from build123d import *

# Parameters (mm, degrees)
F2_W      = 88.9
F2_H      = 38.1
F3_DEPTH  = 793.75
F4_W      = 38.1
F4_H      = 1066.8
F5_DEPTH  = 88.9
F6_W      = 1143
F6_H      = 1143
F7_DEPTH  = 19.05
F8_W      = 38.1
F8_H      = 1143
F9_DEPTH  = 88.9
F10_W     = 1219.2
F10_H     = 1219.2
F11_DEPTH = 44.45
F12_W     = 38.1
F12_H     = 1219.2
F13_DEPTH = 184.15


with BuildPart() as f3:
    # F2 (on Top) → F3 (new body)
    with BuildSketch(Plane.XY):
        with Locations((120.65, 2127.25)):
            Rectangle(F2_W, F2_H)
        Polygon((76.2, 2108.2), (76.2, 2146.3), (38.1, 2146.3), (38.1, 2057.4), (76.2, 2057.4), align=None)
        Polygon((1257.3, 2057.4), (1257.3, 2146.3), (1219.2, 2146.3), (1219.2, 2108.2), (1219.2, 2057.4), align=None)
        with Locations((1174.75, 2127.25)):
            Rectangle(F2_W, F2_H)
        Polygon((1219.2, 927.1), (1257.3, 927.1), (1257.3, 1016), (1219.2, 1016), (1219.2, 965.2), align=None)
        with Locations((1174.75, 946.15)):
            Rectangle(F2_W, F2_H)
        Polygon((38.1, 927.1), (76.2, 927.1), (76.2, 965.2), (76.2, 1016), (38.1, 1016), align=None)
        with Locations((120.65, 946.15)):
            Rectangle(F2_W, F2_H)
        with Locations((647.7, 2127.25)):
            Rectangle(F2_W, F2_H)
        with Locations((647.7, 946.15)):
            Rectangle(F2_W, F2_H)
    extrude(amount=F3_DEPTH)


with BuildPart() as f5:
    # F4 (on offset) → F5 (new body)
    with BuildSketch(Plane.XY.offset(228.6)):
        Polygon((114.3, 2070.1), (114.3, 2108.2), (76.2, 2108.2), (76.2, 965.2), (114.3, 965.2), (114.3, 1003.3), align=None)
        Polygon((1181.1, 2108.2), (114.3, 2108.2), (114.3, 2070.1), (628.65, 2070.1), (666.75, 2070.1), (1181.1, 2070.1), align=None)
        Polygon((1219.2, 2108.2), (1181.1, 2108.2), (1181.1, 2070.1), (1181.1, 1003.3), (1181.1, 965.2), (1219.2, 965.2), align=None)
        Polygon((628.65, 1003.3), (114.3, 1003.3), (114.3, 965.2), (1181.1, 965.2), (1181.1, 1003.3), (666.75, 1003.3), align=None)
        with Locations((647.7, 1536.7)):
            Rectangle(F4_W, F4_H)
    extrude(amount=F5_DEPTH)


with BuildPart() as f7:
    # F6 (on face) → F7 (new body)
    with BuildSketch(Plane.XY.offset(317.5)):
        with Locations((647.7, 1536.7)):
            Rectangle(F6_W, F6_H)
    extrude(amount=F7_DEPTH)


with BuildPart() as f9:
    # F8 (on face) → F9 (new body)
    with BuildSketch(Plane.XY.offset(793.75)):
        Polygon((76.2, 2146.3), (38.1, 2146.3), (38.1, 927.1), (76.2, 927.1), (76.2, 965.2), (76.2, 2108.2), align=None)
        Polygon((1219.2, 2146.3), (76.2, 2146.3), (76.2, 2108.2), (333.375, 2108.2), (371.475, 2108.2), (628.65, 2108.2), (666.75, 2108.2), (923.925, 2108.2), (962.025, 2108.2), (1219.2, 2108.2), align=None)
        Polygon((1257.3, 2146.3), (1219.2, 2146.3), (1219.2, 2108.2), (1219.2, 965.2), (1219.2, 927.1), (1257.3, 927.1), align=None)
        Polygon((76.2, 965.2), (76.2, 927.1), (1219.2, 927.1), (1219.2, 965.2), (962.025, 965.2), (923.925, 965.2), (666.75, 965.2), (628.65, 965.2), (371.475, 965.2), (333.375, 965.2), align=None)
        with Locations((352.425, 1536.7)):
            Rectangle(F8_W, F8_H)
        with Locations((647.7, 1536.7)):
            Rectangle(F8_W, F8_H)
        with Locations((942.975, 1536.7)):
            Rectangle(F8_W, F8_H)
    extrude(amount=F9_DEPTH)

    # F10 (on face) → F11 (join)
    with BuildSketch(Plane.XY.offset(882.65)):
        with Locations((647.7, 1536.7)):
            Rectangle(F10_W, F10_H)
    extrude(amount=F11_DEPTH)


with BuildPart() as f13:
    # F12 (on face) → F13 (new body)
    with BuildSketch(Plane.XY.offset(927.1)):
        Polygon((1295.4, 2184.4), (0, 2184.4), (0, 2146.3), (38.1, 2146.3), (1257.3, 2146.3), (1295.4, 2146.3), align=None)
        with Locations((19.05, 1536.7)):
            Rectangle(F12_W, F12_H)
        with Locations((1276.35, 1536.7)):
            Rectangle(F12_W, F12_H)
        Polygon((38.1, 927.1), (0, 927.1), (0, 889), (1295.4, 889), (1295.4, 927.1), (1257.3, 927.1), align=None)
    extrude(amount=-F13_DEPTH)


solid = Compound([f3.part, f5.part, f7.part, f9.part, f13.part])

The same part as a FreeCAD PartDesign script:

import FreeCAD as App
import Part
import Sketcher
Q = App.Units.Quantity


def add_polygon(sketch, points):
    """Adds a closed chain of lines whose ends are joined by coincident constraints."""
    first, n = sketch.GeometryCount, len(points)
    for a, b in zip(points, points[1:] + points[:1]):
        sketch.addGeometry(Part.LineSegment(App.Vector(*a, 0), App.Vector(*b, 0)), False)
    for i in range(n):
        sketch.addConstraint(Sketcher.Constraint("Coincident", first + i, 2, first + (i + 1) % n, 1))

doc = App.newDocument("Part")
body = doc.addObject("PartDesign::Body", "Body")
body.AllowCompound = True

# Sketch on XY plane
sketch1 = body.newObject("Sketcher::SketchObject", "Sketch")
sketch1.AttachmentSupport = (doc.getObject("XY_Plane"), [""])
sketch1.MapMode = "FlatFace"
add_polygon(sketch1, [(76, 2108), (165, 2108), (165, 2146), (38, 2146), (38, 2057), (76, 2057)])  # lines 0-5
add_polygon(sketch1, [(1257, 2057), (1257, 2146), (1130, 2146), (1130, 2108), (1219, 2108), (1219, 2057)])  # lines 6-11
add_polygon(sketch1, [(1257, 927), (1257, 1016), (1219, 1016), (1219, 965), (1130, 965), (1130, 927)])  # lines 12-17
add_polygon(sketch1, [(38, 927), (165, 927), (165, 965), (76, 965), (76, 1016), (38, 1016)])  # lines 18-23
add_polygon(sketch1, [(603, 2146), (603, 2108), (692, 2108), (692, 2146)])  # lines 24-27
add_polygon(sketch1, [(603, 965), (603, 927), (692, 927), (692, 965)])  # lines 28-31
sketch1.addConstraint(Sketcher.Constraint("Horizontal", 0))
sketch1.addConstraint(Sketcher.Constraint("Vertical", 1))
sketch1.addConstraint(Sketcher.Constraint("Horizontal", 2))
sketch1.addConstraint(Sketcher.Constraint("Vertical", 3))
sketch1.addConstraint(Sketcher.Constraint("Horizontal", 4))
sketch1.addConstraint(Sketcher.Constraint("Vertical", 5))
sketch1.addConstraint(Sketcher.Constraint("Vertical", 6))
sketch1.addConstraint(Sketcher.Constraint("Horizontal", 7))
sketch1.addConstraint(Sketcher.Constraint("Vertical", 8))
sketch1.addConstraint(Sketcher.Constraint("Horizontal", 9))
sketch1.addConstraint(Sketcher.Constraint("Vertical", 10))
sketch1.addConstraint(Sketcher.Constraint("Horizontal", 11))
sketch1.addConstraint(Sketcher.Constraint("Vertical", 12))
sketch1.addConstraint(Sketcher.Constraint("Horizontal", 13))
sketch1.addConstraint(Sketcher.Constraint("Vertical", 14))
sketch1.addConstraint(Sketcher.Constraint("Horizontal", 15))
sketch1.addConstraint(Sketcher.Constraint("Vertical", 16))
sketch1.addConstraint(Sketcher.Constraint("Horizontal", 17))
sketch1.addConstraint(Sketcher.Constraint("Horizontal", 18))
sketch1.addConstraint(Sketcher.Constraint("Vertical", 19))
sketch1.addConstraint(Sketcher.Constraint("Horizontal", 20))
sketch1.addConstraint(Sketcher.Constraint("Vertical", 21))
sketch1.addConstraint(Sketcher.Constraint("Horizontal", 22))
sketch1.addConstraint(Sketcher.Constraint("Vertical", 23))
sketch1.addConstraint(Sketcher.Constraint("Vertical", 24))
sketch1.addConstraint(Sketcher.Constraint("Horizontal", 25))
sketch1.addConstraint(Sketcher.Constraint("Vertical", 26))
sketch1.addConstraint(Sketcher.Constraint("Horizontal", 27))
sketch1.addConstraint(Sketcher.Constraint("Vertical", 28))
sketch1.addConstraint(Sketcher.Constraint("Horizontal", 29))
sketch1.addConstraint(Sketcher.Constraint("Vertical", 30))
sketch1.addConstraint(Sketcher.Constraint("Horizontal", 31))
sketch1.addConstraint(Sketcher.Constraint("Horizontal", 2, 2, 6, 2))
sketch1.addConstraint(Sketcher.Constraint("Horizontal", 5, 2, 8, 2))
sketch1.addConstraint(Sketcher.Constraint("Horizontal", 4, 2, 10, 2))
sketch1.addConstraint(Sketcher.Constraint("Horizontal", 17, 2, 18, 2))
sketch1.addConstraint(Sketcher.Constraint("Horizontal", 15, 2, 19, 2))
sketch1.addConstraint(Sketcher.Constraint("Horizontal", 13, 2, 21, 2))
sketch1.addConstraint(Sketcher.Constraint("Horizontal", 9, 2, 24, 2))
sketch1.addConstraint(Sketcher.Constraint("Horizontal", 7, 2, 26, 2))
sketch1.addConstraint(Sketcher.Constraint("Horizontal", 23, 2, 28, 2))
sketch1.addConstraint(Sketcher.Constraint("Horizontal", 20, 2, 30, 2))
sketch1.addConstraint(Sketcher.Constraint("Vertical", 11, 2, 12, 2))
sketch1.addConstraint(Sketcher.Constraint("Vertical", 10, 2, 13, 2))
sketch1.addConstraint(Sketcher.Constraint("Vertical", 8, 2, 15, 2))
sketch1.addConstraint(Sketcher.Constraint("Vertical", 1, 2, 18, 2))
sketch1.addConstraint(Sketcher.Constraint("Vertical", 5, 2, 20, 2))
sketch1.addConstraint(Sketcher.Constraint("Vertical", 3, 2, 22, 2))
sketch1.addConstraint(Sketcher.Constraint("Vertical", 27, 2, 28, 2))
sketch1.addConstraint(Sketcher.Constraint("Vertical", 26, 2, 29, 2))
sketch1.addConstraint(Sketcher.Constraint("Equal", 2, 7))
sketch1.addConstraint(Sketcher.Constraint("Equal", 0, 9))
sketch1.addConstraint(Sketcher.Constraint("Equal", 20, 25))
sketch1.addConstraint(Sketcher.Constraint("Equal", 22, 1))
sketch1.addConstraint(Sketcher.Constraint("Equal", 31, 3))
sketch1.addConstraint(Sketcher.Constraint("Equal", 6, 12))
sketch1.addConstraint(Sketcher.Constraint("Equal", 10, 14))
sketch1.addConstraint(Sketcher.Constraint("DistanceX", 2, 2, 2, 1, Q("5 in")))
sketch1.addConstraint(Sketcher.Constraint("DistanceY", 5, 1, 5, 2, Q("2 in")))
sketch1.addConstraint(Sketcher.Constraint("DistanceY", -1, 1, 0, 2, Q("83 in")))
sketch1.addConstraint(Sketcher.Constraint("DistanceX", -1, 1, 4, 2, Q("3 in")))
sketch1.addConstraint(Sketcher.Constraint("DistanceX", -1, 1, 9, 2, Q("48 in")))
sketch1.addConstraint(Sketcher.Constraint("DistanceY", -1, 1, 12, 2, Q("40 in")))
sketch1.addConstraint(Sketcher.Constraint("DistanceX", -1, 1, 24, 2, Q("23.75 in")))
pad1 = body.newObject("PartDesign::Pad", "Pad")
pad1.Profile = sketch1
pad1.Length = Q("31.25 in")
body2 = doc.addObject("PartDesign::Body", "Body001")

# Sketch on XY plane
sketch2 = body2.newObject("Sketcher::SketchObject", "Sketch001")
sketch2.AttachmentSupport = (doc.getObject("XY_Plane001"), [""])
sketch2.MapMode = "FlatFace"
sketch2.AttachmentOffset = App.Placement(App.Vector(0, 0, 9 * 25.4), App.Rotation())
add_polygon(sketch2, [(76, 2108), (76, 965), (1219, 965), (1219, 2108)])  # lines 0-3
add_polygon(sketch2, [(114, 1003), (114, 2070), (629, 2070), (629, 1003)])  # lines 4-7
add_polygon(sketch2, [(667, 2070), (1181, 2070), (1181, 1003), (667, 1003)])  # lines 8-11
sketch2.addConstraint(Sketcher.Constraint("Vertical", 0))
sketch2.addConstraint(Sketcher.Constraint("Horizontal", 1))
sketch2.addConstraint(Sketcher.Constraint("Vertical", 2))
sketch2.addConstraint(Sketcher.Constraint("Horizontal", 3))
sketch2.addConstraint(Sketcher.Constraint("Vertical", 4))
sketch2.addConstraint(Sketcher.Constraint("Horizontal", 5))
sketch2.addConstraint(Sketcher.Constraint("Vertical", 6))
sketch2.addConstraint(Sketcher.Constraint("Horizontal", 7))
sketch2.addConstraint(Sketcher.Constraint("Horizontal", 8))
sketch2.addConstraint(Sketcher.Constraint("Vertical", 9))
sketch2.addConstraint(Sketcher.Constraint("Horizontal", 10))
sketch2.addConstraint(Sketcher.Constraint("Vertical", 11))
sketch2.addConstraint(Sketcher.Constraint("Horizontal", 5, 2, 8, 2))
sketch2.addConstraint(Sketcher.Constraint("Horizontal", 7, 2, 9, 2))
sketch2.addConstraint(Sketcher.Constraint("Equal", 7, 8))
sketch2.addConstraint(Sketcher.Constraint("Equal", 3, 0))
sketch2.addConstraint(Sketcher.Constraint("DistanceX", 1, 1, 1, 2, Q("45 in")))
sketch2.addConstraint(Sketcher.Constraint("DistanceY", 4, 1, 4, 2, Q("42 in")))
sketch2.addConstraint(Sketcher.Constraint("DistanceX", -1, 1, 0, 2, Q("3 in")))
sketch2.addConstraint(Sketcher.Constraint("DistanceY", -1, 1, 0, 2, Q("38 in")))
sketch2.addConstraint(Sketcher.Constraint("DistanceX", 4, 2, 8, 2, Q("42 in")))
sketch2.addConstraint(Sketcher.Constraint("DistanceX", 5, 1, 5, 2, Q("20.25 in")))
sketch2.addConstraint(Sketcher.Constraint("DistanceX", -1, 1, 4, 2, Q("4.5 in")))
sketch2.addConstraint(Sketcher.Constraint("DistanceY", -1, 1, 4, 2, Q("81.5 in")))
pad2 = body2.newObject("PartDesign::Pad", "Pad001")
pad2.Profile = sketch2
pad2.Length = Q("3.5 in")
body3 = doc.addObject("PartDesign::Body", "Body002")

# Sketch on XY plane
sketch3 = body3.newObject("Sketcher::SketchObject", "Sketch002")
sketch3.AttachmentSupport = (doc.getObject("XY_Plane002"), [""])
sketch3.MapMode = "FlatFace"
sketch3.AttachmentOffset = App.Placement(App.Vector(0, 0, 12.5 * 25.4), App.Rotation())
add_polygon(sketch3, [(76, 2108), (76, 965), (1219, 965), (1219, 2108)])  # lines 0-3
sketch3.addConstraint(Sketcher.Constraint("Vertical", 0))
sketch3.addConstraint(Sketcher.Constraint("Horizontal", 1))
sketch3.addConstraint(Sketcher.Constraint("Vertical", 2))
sketch3.addConstraint(Sketcher.Constraint("Horizontal", 3))
sketch3.addConstraint(Sketcher.Constraint("Equal", 3, 0))
sketch3.addConstraint(Sketcher.Constraint("DistanceX", 1, 1, 1, 2, Q("45 in")))
sketch3.addConstraint(Sketcher.Constraint("DistanceX", -1, 1, 0, 2, Q("3 in")))
sketch3.addConstraint(Sketcher.Constraint("DistanceY", -1, 1, 0, 2, Q("38 in")))
pad3 = body3.newObject("PartDesign::Pad", "Pad002")
pad3.Profile = sketch3
pad3.Length = Q("0.75 in")
body4 = doc.addObject("PartDesign::Body", "Body003")

# Sketch on XY plane
sketch4 = body4.newObject("Sketcher::SketchObject", "Sketch003")
sketch4.AttachmentSupport = (doc.getObject("XY_Plane003"), [""])
sketch4.MapMode = "FlatFace"
sketch4.AttachmentOffset = App.Placement(App.Vector(0, 0, 31.25 * 25.4), App.Rotation())
add_polygon(sketch4, [(38, 2146), (38, 927), (1257, 927), (1257, 2146)])  # lines 0-3
add_polygon(sketch4, [(76, 965), (76, 2108), (333, 2108), (333, 965)])  # lines 4-7
add_polygon(sketch4, [(371, 2108), (629, 2108), (629, 965), (371, 965)])  # lines 8-11
add_polygon(sketch4, [(667, 2108), (924, 2108), (924, 965), (667, 965)])  # lines 12-15
add_polygon(sketch4, [(962, 2108), (1219, 2108), (1219, 965), (962, 965)])  # lines 16-19
sketch4.addConstraint(Sketcher.Constraint("Vertical", 0))
sketch4.addConstraint(Sketcher.Constraint("Horizontal", 1))
sketch4.addConstraint(Sketcher.Constraint("Vertical", 2))
sketch4.addConstraint(Sketcher.Constraint("Horizontal", 3))
sketch4.addConstraint(Sketcher.Constraint("Vertical", 4))
sketch4.addConstraint(Sketcher.Constraint("Horizontal", 5))
sketch4.addConstraint(Sketcher.Constraint("Vertical", 6))
sketch4.addConstraint(Sketcher.Constraint("Horizontal", 7))
sketch4.addConstraint(Sketcher.Constraint("Horizontal", 8))
sketch4.addConstraint(Sketcher.Constraint("Vertical", 9))
sketch4.addConstraint(Sketcher.Constraint("Horizontal", 10))
sketch4.addConstraint(Sketcher.Constraint("Vertical", 11))
sketch4.addConstraint(Sketcher.Constraint("Horizontal", 12))
sketch4.addConstraint(Sketcher.Constraint("Vertical", 13))
sketch4.addConstraint(Sketcher.Constraint("Horizontal", 14))
sketch4.addConstraint(Sketcher.Constraint("Vertical", 15))
sketch4.addConstraint(Sketcher.Constraint("Horizontal", 16))
sketch4.addConstraint(Sketcher.Constraint("Vertical", 17))
sketch4.addConstraint(Sketcher.Constraint("Horizontal", 18))
sketch4.addConstraint(Sketcher.Constraint("Vertical", 19))
sketch4.addConstraint(Sketcher.Constraint("Horizontal", 5, 2, 8, 2))
sketch4.addConstraint(Sketcher.Constraint("Horizontal", 7, 2, 9, 2))
sketch4.addConstraint(Sketcher.Constraint("Horizontal", 11, 2, 12, 2))
sketch4.addConstraint(Sketcher.Constraint("Horizontal", 10, 2, 13, 2))
sketch4.addConstraint(Sketcher.Constraint("Horizontal", 15, 2, 16, 2))
sketch4.addConstraint(Sketcher.Constraint("Horizontal", 14, 2, 17, 2))
sketch4.addConstraint(Sketcher.Constraint("Equal", 7, 8))
sketch4.addConstraint(Sketcher.Constraint("Equal", 10, 12))
sketch4.addConstraint(Sketcher.Constraint("Equal", 14, 16))
sketch4.addConstraint(Sketcher.Constraint("Equal", 3, 0))
sketch4.addConstraint(Sketcher.Constraint("DistanceX", 1, 1, 1, 2, Q("48 in")))
sketch4.addConstraint(Sketcher.Constraint("DistanceY", 4, 1, 4, 2, Q("45 in")))
sketch4.addConstraint(Sketcher.Constraint("DistanceX", -1, 1, 4, 2, Q("3 in")))
sketch4.addConstraint(Sketcher.Constraint("DistanceY", -1, 1, 4, 2, Q("83 in")))
sketch4.addConstraint(Sketcher.Constraint("DistanceX", -1, 1, 16, 2, Q("48 in")))
sketch4.addConstraint(Sketcher.Constraint("DistanceX", -1, 1, 0, 2, Q("1.5 in")))
sketch4.addConstraint(Sketcher.Constraint("DistanceY", -1, 1, 0, 2, Q("36.5 in")))
sketch4.addConstraint(Sketcher.Constraint("DistanceX", 6, 2, 10, 2, Q("1.5 in")))
sketch4.addConstraint(Sketcher.Constraint("DistanceX", 9, 2, 14, 2, Q("1.5 in")))
sketch4.addConstraint(Sketcher.Constraint("DistanceX", 13, 2, 18, 2, Q("1.5 in")))
pad4 = body4.newObject("PartDesign::Pad", "Pad003")
pad4.Profile = sketch4
pad4.Length = Q("3.5 in")

# Sketch on XY plane
sketch5 = body4.newObject("Sketcher::SketchObject", "Sketch004")
sketch5.AttachmentSupport = (doc.getObject("XY_Plane003"), [""])
sketch5.MapMode = "FlatFace"
sketch5.AttachmentOffset = App.Placement(App.Vector(0, 0, 34.75 * 25.4), App.Rotation())
add_polygon(sketch5, [(38, 2146), (38, 927), (1257, 927), (1257, 2146)])  # lines 0-3
sketch5.addConstraint(Sketcher.Constraint("Vertical", 0))
sketch5.addConstraint(Sketcher.Constraint("Horizontal", 1))
sketch5.addConstraint(Sketcher.Constraint("Vertical", 2))
sketch5.addConstraint(Sketcher.Constraint("Horizontal", 3))
sketch5.addConstraint(Sketcher.Constraint("Equal", 3, 0))
sketch5.addConstraint(Sketcher.Constraint("DistanceX", 1, 1, 1, 2, Q("48 in")))
sketch5.addConstraint(Sketcher.Constraint("DistanceX", -1, 1, 0, 2, Q("1.5 in")))
sketch5.addConstraint(Sketcher.Constraint("DistanceY", -1, 1, 0, 2, Q("36.5 in")))
pad5 = body4.newObject("PartDesign::Pad", "Pad004")
pad5.Profile = sketch5
pad5.Length = Q("1.75 in")
body5 = doc.addObject("PartDesign::Body", "Body004")

# Sketch on XY plane
sketch6 = body5.newObject("Sketcher::SketchObject", "Sketch005")
sketch6.AttachmentSupport = (doc.getObject("XY_Plane004"), [""])
sketch6.MapMode = "FlatFace"
sketch6.AttachmentOffset = App.Placement(App.Vector(0, 0, 36.5 * 25.4), App.Rotation())
add_polygon(sketch6, [(1295, 2184), (0, 2184), (0, 889), (1295, 889)])  # lines 0-3
add_polygon(sketch6, [(38, 927), (38, 2146), (1257, 2146), (1257, 927)])  # lines 4-7
sketch6.addConstraint(Sketcher.Constraint("Horizontal", 0))
sketch6.addConstraint(Sketcher.Constraint("Vertical", 1))
sketch6.addConstraint(Sketcher.Constraint("Horizontal", 2))
sketch6.addConstraint(Sketcher.Constraint("Vertical", 3))
sketch6.addConstraint(Sketcher.Constraint("Vertical", 4))
sketch6.addConstraint(Sketcher.Constraint("Horizontal", 5))
sketch6.addConstraint(Sketcher.Constraint("Vertical", 6))
sketch6.addConstraint(Sketcher.Constraint("Horizontal", 7))
sketch6.addConstraint(Sketcher.Constraint("PointOnObject", 0, 2, -2))
sketch6.addConstraint(Sketcher.Constraint("Equal", 2, 1))
sketch6.addConstraint(Sketcher.Constraint("Equal", 7, 4))
sketch6.addConstraint(Sketcher.Constraint("DistanceX", 0, 2, 0, 1, Q("51 in")))
sketch6.addConstraint(Sketcher.Constraint("DistanceX", 5, 1, 5, 2, Q("48 in")))
sketch6.addConstraint(Sketcher.Constraint("DistanceY", -1, 1, 0, 2, Q("86 in")))
sketch6.addConstraint(Sketcher.Constraint("DistanceX", -1, 1, 4, 2, Q("1.5 in")))
sketch6.addConstraint(Sketcher.Constraint("DistanceY", -1, 1, 4, 2, Q("84.5 in")))
pad6 = body5.newObject("PartDesign::Pad", "Pad005")
pad6.Profile = sketch6
pad6.Length = Q("7.25 in")
pad6.Reversed = True

doc.recompute()
